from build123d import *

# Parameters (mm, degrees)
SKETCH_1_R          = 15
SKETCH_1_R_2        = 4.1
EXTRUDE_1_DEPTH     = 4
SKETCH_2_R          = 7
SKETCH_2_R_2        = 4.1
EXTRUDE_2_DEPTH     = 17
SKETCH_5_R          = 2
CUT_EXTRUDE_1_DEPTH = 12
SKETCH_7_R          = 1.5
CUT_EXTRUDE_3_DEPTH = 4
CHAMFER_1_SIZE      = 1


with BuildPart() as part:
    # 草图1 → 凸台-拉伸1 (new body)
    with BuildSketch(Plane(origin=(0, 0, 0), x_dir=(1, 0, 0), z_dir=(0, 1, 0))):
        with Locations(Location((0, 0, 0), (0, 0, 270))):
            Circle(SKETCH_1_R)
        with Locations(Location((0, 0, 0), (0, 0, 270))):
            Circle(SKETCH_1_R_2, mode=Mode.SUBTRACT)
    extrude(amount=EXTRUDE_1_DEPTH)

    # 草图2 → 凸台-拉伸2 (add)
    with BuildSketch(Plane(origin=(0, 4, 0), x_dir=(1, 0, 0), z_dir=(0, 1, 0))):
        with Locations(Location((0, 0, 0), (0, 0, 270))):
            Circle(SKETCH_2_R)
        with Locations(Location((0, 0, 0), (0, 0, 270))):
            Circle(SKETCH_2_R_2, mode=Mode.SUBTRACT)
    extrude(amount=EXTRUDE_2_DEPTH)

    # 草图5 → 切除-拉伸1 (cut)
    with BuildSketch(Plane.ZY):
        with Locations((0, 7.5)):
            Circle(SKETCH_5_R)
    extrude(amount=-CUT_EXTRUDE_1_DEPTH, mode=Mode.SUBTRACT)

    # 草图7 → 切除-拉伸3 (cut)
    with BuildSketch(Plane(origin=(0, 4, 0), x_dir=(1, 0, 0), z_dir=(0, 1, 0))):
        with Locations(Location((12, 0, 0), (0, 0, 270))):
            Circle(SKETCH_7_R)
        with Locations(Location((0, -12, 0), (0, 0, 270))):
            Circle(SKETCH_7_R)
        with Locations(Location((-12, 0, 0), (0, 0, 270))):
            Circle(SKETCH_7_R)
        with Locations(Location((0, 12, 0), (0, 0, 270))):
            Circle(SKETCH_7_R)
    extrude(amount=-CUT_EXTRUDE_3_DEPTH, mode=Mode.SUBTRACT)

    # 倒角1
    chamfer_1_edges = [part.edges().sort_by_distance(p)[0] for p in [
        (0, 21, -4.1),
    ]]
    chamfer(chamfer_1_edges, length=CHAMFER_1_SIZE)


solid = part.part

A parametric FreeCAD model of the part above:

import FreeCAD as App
import Part
import Sketcher

V = App.Vector
Q = App.Units.Quantity


def edges_at(feature, points):
    """Names of the edges that pass closest to the given points."""
    edges = feature.Shape.Edges
    near = lambda p: min(range(len(edges)), key=lambda i: edges[i].distToShape(Part.Vertex(*p))[0])
    return sorted({f"Edge{near(p) + 1}" for p in points})

doc = App.newDocument("Part")
body = doc.addObject("PartDesign::Body", "Body")

# Sketch on XZ plane
sketch1 = body.newObject("Sketcher::SketchObject", "Sketch")
sketch1.AttachmentSupport = (doc.getObject("XZ_Plane"), [""])
sketch1.MapMode = "FlatFace"
sketch1.addGeometry([
    Part.Circle(V(0, 0, 0), V(0, 0, 1), 15),
    Part.Circle(V(0, 0, 0), V(0, 0, 1), 4.1),
], False)
sketch1.addConstraint([
    Sketcher.Constraint("Coincident", 0, 3, -1, 1),
    Sketcher.Constraint("Coincident", 1, 3, -1, 1),
    Sketcher.Constraint("Diameter", 0, Q("30 mm")),
    Sketcher.Constraint("Diameter", 1, Q("8.2 mm")),
])
pad1 = body.newObject("PartDesign::Pad", "Pad")
pad1.Profile = sketch1
pad1.Length = 4
pad1.Reversed = True

# Sketch on XZ plane
sketch2 = body.newObject("Sketcher::SketchObject", "Sketch001")
sketch2.AttachmentSupport = (doc.getObject("XZ_Plane"), [""])
sketch2.MapMode = "FlatFace"
sketch2.AttachmentOffset = App.Placement(V(0, 0, -4), App.Rotation())
sketch2.addGeometry([
    Part.Circle(V(0, 0, 0), V(0, 0, 1), 7),
    Part.Circle(V(0, 0, 0), V(0, 0, 1), 4.1),
], False)
sketch2.addConstraint([
    Sketcher.Constraint("Coincident", 0, 3, -1, 1),
    Sketcher.Constraint("Coincident", 1, 3, -1, 1),
    Sketcher.Constraint("Diameter", 0, Q("14 mm")),
    Sketcher.Constraint("Diameter", 1, Q("8.2 mm")),
])
pad2 = body.newObject("PartDesign::Pad", "Pad001")
pad2.Profile = sketch2
pad2.Length = 17
pad2.Reversed = True

# Sketch on YZ plane
sketch3 = body.newObject("Sketcher::SketchObject", "Sketch002")
sketch3.AttachmentSupport = (doc.getObject("YZ_Plane"), [""])
sketch3.MapMode = "FlatFace"
sketch3.addGeometry(Part.Circle(V(7.5, 0, 0), V(0, 0, 1), 2), False)
sketch3.addConstraint([
    Sketcher.Constraint("PointOnObject", 0, 3, -1),
    Sketcher.Constraint("Diameter", 0, Q("4 mm")),
    Sketcher.Constraint("DistanceX", -1, 1, 0, 3, Q("7.5 mm")),
])
pocket1 = body.newObject("PartDesign::Pocket", "Pocket")
pocket1.Profile = sketch3
pocket1.Length = 12
pocket1.Reversed = True

# Sketch on XZ plane
sketch4 = body.newObject("Sketcher::SketchObject", "Sketch003")
sketch4.AttachmentSupport = (doc.getObject("XZ_Plane"), [""])
sketch4.MapMode = "FlatFace"
sketch4.AttachmentOffset = App.Placement(V(0, 0, -4), App.Rotation())
sketch4.addGeometry([
    Part.Circle(V(12, 0, 0), V(0, 0, 1), 1.5),
    Part.Circle(V(0, 12, 0), V(0, 0, 1), 1.5),
    Part.Circle(V(-12, 0, 0), V(0, 0, 1), 1.5),
    Part.Circle(V(0, -12, 0), V(0, 0, 1), 1.5),
], False)
sketch4.addConstraint([
    Sketcher.Constraint("Equal", 0, 1),
    Sketcher.Constraint("Equal", 1, 2),
    Sketcher.Constraint("Equal", 2, 3),
    Sketcher.Constraint("Symmetric", 0, 3, 2, 3, -1, 1),
    Sketcher.Constraint("Symmetric", 1, 3, 3, 3, -1, 1),
    Sketcher.Constraint("PointOnObject", 0, 3, -1),
    Sketcher.Constraint("PointOnObject", 1, 3, -2),
    Sketcher.Constraint("Diameter", 0, Q("3 mm")),
    Sketcher.Constraint("DistanceX", -1, 1, 0, 3, Q("12 mm")),
    Sketcher.Constraint("DistanceY", -1, 1, 1, 3, Q("12 mm")),
])
pocket2 = body.newObject("PartDesign::Pocket", "Pocket001")
pocket2.Profile = sketch4
pocket2.Length = 4
pocket2.Reversed = True
doc.recompute()

chamfer = body.newObject("PartDesign::Chamfer", "Chamfer")
chamfer.Base = (pocket2, edges_at(pocket2, [(0, 21, -4.1)]))
chamfer.Size = 1

doc.recompute()
